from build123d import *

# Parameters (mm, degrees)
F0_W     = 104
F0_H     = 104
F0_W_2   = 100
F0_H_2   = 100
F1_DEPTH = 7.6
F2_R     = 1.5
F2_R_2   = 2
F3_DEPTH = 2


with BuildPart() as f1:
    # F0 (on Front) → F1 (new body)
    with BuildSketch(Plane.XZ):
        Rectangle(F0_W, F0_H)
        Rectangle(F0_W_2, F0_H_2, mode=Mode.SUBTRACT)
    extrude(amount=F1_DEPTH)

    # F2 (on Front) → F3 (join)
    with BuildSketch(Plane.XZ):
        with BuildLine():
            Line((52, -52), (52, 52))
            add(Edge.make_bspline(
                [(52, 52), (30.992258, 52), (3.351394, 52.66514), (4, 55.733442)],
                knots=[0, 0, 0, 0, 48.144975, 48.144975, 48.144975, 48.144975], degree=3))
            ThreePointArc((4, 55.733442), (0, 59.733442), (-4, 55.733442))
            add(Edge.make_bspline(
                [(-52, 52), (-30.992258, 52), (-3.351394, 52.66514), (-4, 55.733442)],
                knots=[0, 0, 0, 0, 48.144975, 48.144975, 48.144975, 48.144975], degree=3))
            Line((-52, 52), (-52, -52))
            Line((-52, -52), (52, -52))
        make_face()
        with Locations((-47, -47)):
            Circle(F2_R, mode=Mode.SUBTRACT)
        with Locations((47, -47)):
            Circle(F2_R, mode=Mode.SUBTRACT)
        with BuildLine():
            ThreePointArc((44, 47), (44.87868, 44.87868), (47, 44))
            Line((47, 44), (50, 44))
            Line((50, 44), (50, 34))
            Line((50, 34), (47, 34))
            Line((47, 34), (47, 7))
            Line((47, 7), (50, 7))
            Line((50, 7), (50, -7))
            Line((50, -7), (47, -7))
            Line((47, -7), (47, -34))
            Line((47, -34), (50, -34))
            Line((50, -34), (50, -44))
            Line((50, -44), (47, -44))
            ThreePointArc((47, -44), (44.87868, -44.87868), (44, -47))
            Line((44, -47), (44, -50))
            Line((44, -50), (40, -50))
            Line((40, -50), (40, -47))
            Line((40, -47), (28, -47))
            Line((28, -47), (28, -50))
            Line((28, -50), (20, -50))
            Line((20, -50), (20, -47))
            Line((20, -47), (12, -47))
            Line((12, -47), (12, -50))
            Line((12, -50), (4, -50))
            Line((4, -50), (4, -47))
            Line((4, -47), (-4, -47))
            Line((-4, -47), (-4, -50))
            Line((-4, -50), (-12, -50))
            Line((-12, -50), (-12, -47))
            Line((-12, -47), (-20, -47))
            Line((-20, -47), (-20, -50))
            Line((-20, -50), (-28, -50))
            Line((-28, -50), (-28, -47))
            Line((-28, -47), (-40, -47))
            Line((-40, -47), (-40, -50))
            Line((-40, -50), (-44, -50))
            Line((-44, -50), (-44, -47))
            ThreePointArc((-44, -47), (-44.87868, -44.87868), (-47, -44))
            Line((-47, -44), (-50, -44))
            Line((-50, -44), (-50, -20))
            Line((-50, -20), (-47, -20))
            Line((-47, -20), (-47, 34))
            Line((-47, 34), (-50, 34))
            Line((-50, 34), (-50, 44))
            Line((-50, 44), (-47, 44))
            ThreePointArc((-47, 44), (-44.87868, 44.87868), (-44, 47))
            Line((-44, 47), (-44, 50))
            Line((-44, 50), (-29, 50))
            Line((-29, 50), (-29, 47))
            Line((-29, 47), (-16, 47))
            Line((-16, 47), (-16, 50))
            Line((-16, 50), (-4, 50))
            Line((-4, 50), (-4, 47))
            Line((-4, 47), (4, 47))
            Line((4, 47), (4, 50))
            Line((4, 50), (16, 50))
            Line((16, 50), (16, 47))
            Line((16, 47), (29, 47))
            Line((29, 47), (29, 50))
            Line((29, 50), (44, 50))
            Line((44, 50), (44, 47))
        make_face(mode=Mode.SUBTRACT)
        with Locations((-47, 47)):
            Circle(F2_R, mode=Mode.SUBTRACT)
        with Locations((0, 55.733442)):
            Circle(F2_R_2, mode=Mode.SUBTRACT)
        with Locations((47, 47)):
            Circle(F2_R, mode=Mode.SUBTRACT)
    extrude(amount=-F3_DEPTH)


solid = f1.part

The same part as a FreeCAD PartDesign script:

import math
import FreeCAD as App
import Part
import Sketcher
Q = App.Units.Quantity


def add_polygon(sketch, points):
    """Adds a closed chain of lines whose ends are joined by coincident constraints."""
    first, n = sketch.GeometryCount, len(points)
    for a, b in zip(points, points[1:] + points[:1]):
        sketch.addGeometry(Part.LineSegment(App.Vector(*a, 0), App.Vector(*b, 0)), False)
    for i in range(n):
        sketch.addConstraint(Sketcher.Constraint("Coincident", first + i, 2, first + (i + 1) % n, 1))

doc = App.newDocument("Part")
body = doc.addObject("PartDesign::Body", "Body")

# Sketch on XZ plane
sketch1 = doc.addObject("Sketcher::SketchObject", "Sketch")
body.addObject(sketch1)
sketch1.AttachmentSupport = (doc.XZ_Plane, [""])
sketch1.MapMode = "FlatFace"
add_polygon(sketch1, [(-52, 52), (-52, -52), (52, -52), (52, 52)])  # lines 0-3
add_polygon(sketch1, [(50, -50), (-50, -50), (-50, 50), (50, 50)])  # lines 4-7
sketch1.addConstraint([
    Sketcher.Constraint("Vertical", 0),
    Sketcher.Constraint("Horizontal", 1),
    Sketcher.Constraint("Vertical", 2),
    Sketcher.Constraint("Horizontal", 3),
    Sketcher.Constraint("Horizontal", 4),
    Sketcher.Constraint("Vertical", 5),
    Sketcher.Constraint("Horizontal", 6),
    Sketcher.Constraint("Vertical", 7),
    Sketcher.Constraint("Symmetric", 0, 2, 2, 2, -1, 1),
    Sketcher.Constraint("Symmetric", 4, 2, 6, 2, -1, 1),
    Sketcher.Constraint("Equal", 3, 0),
    Sketcher.Constraint("Equal", 6, 5),
    Sketcher.Constraint("DistanceX", 1, 1, 1, 2, Q("104 mm")),
    Sketcher.Constraint("DistanceX", 4, 2, 4, 1, Q("100 mm")),
])
pad1 = doc.addObject("PartDesign::Pad", "Pad")
body.addObject(pad1)
pad1.Profile = sketch1
pad1.Length = 7.6

# Sketch on XZ plane
sketch2 = doc.addObject("Sketcher::SketchObject", "Sketch001")
body.addObject(sketch2)
sketch2.AttachmentSupport = (doc.XZ_Plane, [""])
sketch2.MapMode = "FlatFace"
sketch2.addGeometry([
    Part.LineSegment(App.Vector(52, -52, 0), App.Vector(52, 52, 0)),  # 0
    Part.BSplineCurve([App.Vector(52, 52, 0), App.Vector(30.992258, 52, 0), App.Vector(3.351394, 52.66514, 0), App.Vector(4, 55.733442, 0)], [4, 4], [0, 48.144975], False, 3, [1, 1, 1, 1], False),  # 1
    Part.ArcOfCircle(Part.Circle(App.Vector(0, 55.733442, 0), App.Vector(0, 0, 1), 4), math.radians(0), math.radians(180)),  # 2
    Part.BSplineCurve([App.Vector(-52, 52, 0), App.Vector(-30.992258, 52, 0), App.Vector(-3.351394, 52.66514, 0), App.Vector(-4, 55.733442, 0)], [4, 4], [0, 48.144975], False, 3, [1, 1, 1, 1], False),  # 3
    Part.LineSegment(App.Vector(-52, 52, 0), App.Vector(-52, -52, 0)),  # 4
    Part.LineSegment(App.Vector(-52, -52, 0), App.Vector(52, -52, 0)),  # 5
    Part.Circle(App.Vector(-47, -47, 0), App.Vector(0, 0, 1), 1.5),  # 6
    Part.Circle(App.Vector(47, -47, 0), App.Vector(0, 0, 1), 1.5),  # 7
    Part.LineSegment(App.Vector(44, 50, 0), App.Vector(44, 47, 0)),  # 8
    Part.ArcOfCircle(Part.Circle(App.Vector(47.000001, 47.000001, 0), App.Vector(0, 0, 1), 3.000001), math.radians(-179.999978), math.radians(-90.000022)),  # 9
    Part.LineSegment(App.Vector(47, 44, 0), App.Vector(50, 44, 0)),  # 10
    Part.LineSegment(App.Vector(50, 44, 0), App.Vector(50, 34, 0)),  # 11
    Part.LineSegment(App.Vector(50, 34, 0), App.Vector(47, 34, 0)),  # 12
    Part.LineSegment(App.Vector(47, 34, 0), App.Vector(47, 7, 0)),  # 13
    Part.LineSegment(App.Vector(47, 7, 0), App.Vector(50, 7, 0)),  # 14
    Part.LineSegment(App.Vector(50, 7, 0), App.Vector(50, -7, 0)),  # 15
    Part.LineSegment(App.Vector(50, -7, 0), App.Vector(47, -7, 0)),  # 16
    Part.LineSegment(App.Vector(47, -7, 0), App.Vector(47, -34, 0)),  # 17
    Part.LineSegment(App.Vector(47, -34, 0), App.Vector(50, -34, 0)),  # 18
    Part.LineSegment(App.Vector(50, -34, 0), App.Vector(50, -44, 0)),  # 19
    Part.LineSegment(App.Vector(50, -44, 0), App.Vector(47, -44, 0)),  # 20
    Part.ArcOfCircle(Part.Circle(App.Vector(47.000001, -47.000001, 0), App.Vector(0, 0, 1), 3.000001), math.radians(90.000022), math.radians(179.999978)),  # 21
    Part.LineSegment(App.Vector(44, -47, 0), App.Vector(44, -50, 0)),  # 22
    Part.LineSegment(App.Vector(44, -50, 0), App.Vector(40, -50, 0)),  # 23
    Part.LineSegment(App.Vector(40, -50, 0), App.Vector(40, -47, 0)),  # 24
    Part.LineSegment(App.Vector(40, -47, 0), App.Vector(28, -47, 0)),  # 25
    Part.LineSegment(App.Vector(28, -47, 0), App.Vector(28, -50, 0)),  # 26
    Part.LineSegment(App.Vector(28, -50, 0), App.Vector(20, -50, 0)),  # 27
    Part.LineSegment(App.Vector(20, -50, 0), App.Vector(20, -47, 0)),  # 28
    Part.LineSegment(App.Vector(20, -47, 0), App.Vector(12, -47, 0)),  # 29
    Part.LineSegment(App.Vector(12, -47, 0), App.Vector(12, -50, 0)),  # 30
    Part.LineSegment(App.Vector(12, -50, 0), App.Vector(4, -50, 0)),  # 31
    Part.LineSegment(App.Vector(4, -50, 0), App.Vector(4, -47, 0)),  # 32
    Part.LineSegment(App.Vector(4, -47, 0), App.Vector(-4, -47, 0)),  # 33
    Part.LineSegment(App.Vector(-4, -47, 0), App.Vector(-4, -50, 0)),  # 34
    Part.LineSegment(App.Vector(-4, -50, 0), App.Vector(-12, -50, 0)),  # 35
    Part.LineSegment(App.Vector(-12, -50, 0), App.Vector(-12, -47, 0)),  # 36
    Part.LineSegment(App.Vector(-12, -47, 0), App.Vector(-20, -47, 0)),  # 37
    Part.LineSegment(App.Vector(-20, -47, 0), App.Vector(-20, -50, 0)),  # 38
    Part.LineSegment(App.Vector(-20, -50, 0), App.Vector(-28, -50, 0)),  # 39
    Part.LineSegment(App.Vector(-28, -50, 0), App.Vector(-28, -47, 0)),  # 40
    Part.LineSegment(App.Vector(-28, -47, 0), App.Vector(-40, -47, 0)),  # 41
    Part.LineSegment(App.Vector(-40, -47, 0), App.Vector(-40, -50, 0)),  # 42
    Part.LineSegment(App.Vector(-40, -50, 0), App.Vector(-44, -50, 0)),  # 43
    Part.LineSegment(App.Vector(-44, -50, 0), App.Vector(-44, -47, 0)),  # 44
    Part.ArcOfCircle(Part.Circle(App.Vector(-47.000001, -47.000001, 0), App.Vector(0, 0, 1), 3.000001), math.radians(0.000022), math.radians(89.999978)),  # 45
    Part.LineSegment(App.Vector(-47, -44, 0), App.Vector(-50, -44, 0)),  # 46
    Part.LineSegment(App.Vector(-50, -44, 0), App.Vector(-50, -20, 0)),  # 47
    Part.LineSegment(App.Vector(-50, -20, 0), App.Vector(-47, -20, 0)),  # 48
    Part.LineSegment(App.Vector(-47, -20, 0), App.Vector(-47, 34, 0)),  # 49
    Part.LineSegment(App.Vector(-47, 34, 0), App.Vector(-50, 34, 0)),  # 50
    Part.LineSegment(App.Vector(-50, 34, 0), App.Vector(-50, 44, 0)),  # 51
    Part.LineSegment(App.Vector(-50, 44, 0), App.Vector(-47, 44, 0)),  # 52
    Part.ArcOfCircle(Part.Circle(App.Vector(-47.000001, 47.000001, 0), App.Vector(0, 0, 1), 3.000001), math.radians(-89.999978), math.radians(-0.000022)),  # 53
    Part.LineSegment(App.Vector(-44, 47, 0), App.Vector(-44, 50, 0)),  # 54
    Part.LineSegment(App.Vector(-44, 50, 0), App.Vector(-29, 50, 0)),  # 55
    Part.LineSegment(App.Vector(-29, 50, 0), App.Vector(-29, 47, 0)),  # 56
    Part.LineSegment(App.Vector(-29, 47, 0), App.Vector(-16, 47, 0)),  # 57
    Part.LineSegment(App.Vector(-16, 47, 0), App.Vector(-16, 50, 0)),  # 58
    Part.LineSegment(App.Vector(-16, 50, 0), App.Vector(-4, 50, 0)),  # 59
    Part.LineSegment(App.Vector(-4, 50, 0), App.Vector(-4, 47, 0)),  # 60
    Part.LineSegment(App.Vector(-4, 47, 0), App.Vector(4, 47, 0)),  # 61
    Part.LineSegment(App.Vector(4, 47, 0), App.Vector(4, 50, 0)),  # 62
    Part.LineSegment(App.Vector(4, 50, 0), App.Vector(16, 50, 0)),  # 63
    Part.LineSegment(App.Vector(16, 50, 0), App.Vector(16, 47, 0)),  # 64
    Part.LineSegment(App.Vector(16, 47, 0), App.Vector(29, 47, 0)),  # 65
    Part.LineSegment(App.Vector(29, 47, 0), App.Vector(29, 50, 0)),  # 66
    Part.LineSegment(App.Vector(29, 50, 0), App.Vector(44, 50, 0)),  # 67
    Part.Circle(App.Vector(-47, 47, 0), App.Vector(0, 0, 1), 1.5),  # 68
    Part.Circle(App.Vector(0, 55.733442, 0), App.Vector(0, 0, 1), 2),  # 69
    Part.Circle(App.Vector(47, 47, 0), App.Vector(0, 0, 1), 1.5),  # 70
], False)
sketch2.addConstraint([
    Sketcher.Constraint("Block", 1),
    Sketcher.Constraint("Block", 3),
    Sketcher.Constraint("Coincident", 0, 2, 1, 1),
    Sketcher.Constraint("Coincident", 1, 2, 2, 1),
    Sketcher.Constraint("Coincident", 2, 2, 3, 2),
    Sketcher.Constraint("Coincident", 3, 1, 4, 1),
    Sketcher.Constraint("Coincident", 4, 2, 5, 1),
    Sketcher.Constraint("Coincident", 5, 2, 0, 1),
    Sketcher.Constraint("Coincident", 8, 2, 9, 1),
    Sketcher.Constraint("Coincident", 9, 2, 10, 1),
    Sketcher.Constraint("Coincident", 10, 2, 11, 1),
    Sketcher.Constraint("Coincident", 11, 2, 12, 1),
    Sketcher.Constraint("Coincident", 12, 2, 13, 1),
    Sketcher.Constraint("Coincident", 13, 2, 14, 1),
    Sketcher.Constraint("Coincident", 14, 2, 15, 1),
    Sketcher.Constraint("Coincident", 15, 2, 16, 1),
    Sketcher.Constraint("Coincident", 16, 2, 17, 1),
    Sketcher.Constraint("Coincident", 17, 2, 18, 1),
    Sketcher.Constraint("Coincident", 18, 2, 19, 1),
    Sketcher.Constraint("Coincident", 19, 2, 20, 1),
    Sketcher.Constraint("Coincident", 20, 2, 21, 1),
    Sketcher.Constraint("Coincident", 21, 2, 22, 1),
    Sketcher.Constraint("Coincident", 22, 2, 23, 1),
    Sketcher.Constraint("Coincident", 23, 2, 24, 1),
    Sketcher.Constraint("Coincident", 24, 2, 25, 1),
    Sketcher.Constraint("Coincident", 25, 2, 26, 1),
    Sketcher.Constraint("Coincident", 26, 2, 27, 1),
    Sketcher.Constraint("Coincident", 27, 2, 28, 1),
    Sketcher.Constraint("Coincident", 28, 2, 29, 1),
    Sketcher.Constraint("Coincident", 29, 2, 30, 1),
    Sketcher.Constraint("Coincident", 30, 2, 31, 1),
    Sketcher.Constraint("Coincident", 31, 2, 32, 1),
    Sketcher.Constraint("Coincident", 32, 2, 33, 1),
    Sketcher.Constraint("Coincident", 33, 2, 34, 1),
    Sketcher.Constraint("Coincident", 34, 2, 35, 1),
    Sketcher.Constraint("Coincident", 35, 2, 36, 1),
    Sketcher.Constraint("Coincident", 36, 2, 37, 1),
    Sketcher.Constraint("Coincident", 37, 2, 38, 1),
    Sketcher.Constraint("Coincident", 38, 2, 39, 1),
    Sketcher.Constraint("Coincident", 39, 2, 40, 1),
    Sketcher.Constraint("Coincident", 40, 2, 41, 1),
    Sketcher.Constraint("Coincident", 41, 2, 42, 1),
    Sketcher.Constraint("Coincident", 42, 2, 43, 1),
    Sketcher.Constraint("Coincident", 43, 2, 44, 1),
    Sketcher.Constraint("Coincident", 44, 2, 45, 1),
    Sketcher.Constraint("Coincident", 45, 2, 46, 1),
    Sketcher.Constraint("Coincident", 46, 2, 47, 1),
    Sketcher.Constraint("Coincident", 47, 2, 48, 1),
    Sketcher.Constraint("Coincident", 48, 2, 49, 1),
    Sketcher.Constraint("Coincident", 49, 2, 50, 1),
    Sketcher.Constraint("Coincident", 50, 2, 51, 1),
    Sketcher.Constraint("Coincident", 51, 2, 52, 1),
    Sketcher.Constraint("Coincident", 52, 2, 53, 1),
    Sketcher.Constraint("Coincident", 53, 2, 54, 1),
    Sketcher.Constraint("Coincident", 54, 2, 55, 1),
    Sketcher.Constraint("Coincident", 55, 2, 56, 1),
    Sketcher.Constraint("Coincident", 56, 2, 57, 1),
    Sketcher.Constraint("Coincident", 57, 2, 58, 1),
    Sketcher.Constraint("Coincident", 58, 2, 59, 1),
    Sketcher.Constraint("Coincident", 59, 2, 60, 1),
    Sketcher.Constraint("Coincident", 60, 2, 61, 1),
    Sketcher.Constraint("Coincident", 61, 2, 62, 1),
    Sketcher.Constraint("Coincident", 62, 2, 63, 1),
    Sketcher.Constraint("Coincident", 63, 2, 64, 1),
    Sketcher.Constraint("Coincident", 64, 2, 65, 1),
    Sketcher.Constraint("Coincident", 65, 2, 66, 1),
    Sketcher.Constraint("Coincident", 66, 2, 67, 1),
    Sketcher.Constraint("Coincident", 67, 2, 8, 1),
    Sketcher.Constraint("Vertical", 0),
    Sketcher.Constraint("Vertical", 4),
    Sketcher.Constraint("Horizontal", 5),
    Sketcher.Constraint("Vertical", 8),
    Sketcher.Constraint("Horizontal", 10),
    Sketcher.Constraint("Vertical", 11),
    Sketcher.Constraint("Horizontal", 12),
    Sketcher.Constraint("Vertical", 13),
    Sketcher.Constraint("Horizontal", 14),
    Sketcher.Constraint("Vertical", 15),
    Sketcher.Constraint("Horizontal", 16),
    Sketcher.Constraint("Vertical", 17),
    Sketcher.Constraint("Horizontal", 18),
    Sketcher.Constraint("Vertical", 19),
    Sketcher.Constraint("Horizontal", 20),
    Sketcher.Constraint("Vertical", 22),
    Sketcher.Constraint("Horizontal", 23),
    Sketcher.Constraint("Vertical", 24),
    Sketcher.Constraint("Horizontal", 25),
    Sketcher.Constraint("Vertical", 26),
    Sketcher.Constraint("Horizontal", 27),
    Sketcher.Constraint("Vertical", 28),
    Sketcher.Constraint("Horizontal", 29),
    Sketcher.Constraint("Vertical", 30),
    Sketcher.Constraint("Horizontal", 31),
    Sketcher.Constraint("Vertical", 32),
    Sketcher.Constraint("Horizontal", 33),
    Sketcher.Constraint("Vertical", 34),
    Sketcher.Constraint("Horizontal", 35),
    Sketcher.Constraint("Vertical", 36),
    Sketcher.Constraint("Horizontal", 37),
    Sketcher.Constraint("Vertical", 38),
    Sketcher.Constraint("Horizontal", 39),
    Sketcher.Constraint("Vertical", 40),
    Sketcher.Constraint("Horizontal", 41),
    Sketcher.Constraint("Vertical", 42),
    Sketcher.Constraint("Horizontal", 43),
    Sketcher.Constraint("Vertical", 44),
    Sketcher.Constraint("Horizontal", 46),
    Sketcher.Constraint("Vertical", 47),
    Sketcher.Constraint("Horizontal", 48),
    Sketcher.Constraint("Vertical", 49),
    Sketcher.Constraint("Horizontal", 50),
    Sketcher.Constraint("Vertical", 51),
    Sketcher.Constraint("Horizontal", 52),
    Sketcher.Constraint("Vertical", 54),
    Sketcher.Constraint("Horizontal", 55),
    Sketcher.Constraint("Vertical", 56),
    Sketcher.Constraint("Horizontal", 57),
    Sketcher.Constraint("Vertical", 58),
    Sketcher.Constraint("Horizontal", 59),
    Sketcher.Constraint("Vertical", 60),
    Sketcher.Constraint("Horizontal", 61),
    Sketcher.Constraint("Vertical", 62),
    Sketcher.Constraint("Horizontal", 63),
    Sketcher.Constraint("Vertical", 64),
    Sketcher.Constraint("Horizontal", 65),
    Sketcher.Constraint("Vertical", 66),
    Sketcher.Constraint("Horizontal", 67),
    Sketcher.Constraint("Coincident", 21, 3, 7, 3),
    Sketcher.Constraint("Coincident", 45, 3, 6, 3),
    Sketcher.Constraint("Coincident", 68, 3, 53, 3),
    Sketcher.Constraint("Coincident", 69, 3, 2, 3),
    Sketcher.Constraint("Coincident", 70, 3, 9, 3),
    Sketcher.Constraint("Diameter", 6, Q("3 mm")),
    Sketcher.Constraint("Diameter", 7, Q("3 mm")),
    Sketcher.Constraint("Diameter", 68, Q("3 mm")),
    Sketcher.Constraint("Diameter", 69, Q("4 mm")),
    Sketcher.Constraint("Diameter", 70, Q("3 mm")),
    Sketcher.Constraint("Radius", 9, Q("3.000001 mm")),
    Sketcher.Constraint("Radius", 21, Q("3.000001 mm")),
    Sketcher.Constraint("Radius", 45, Q("3.000001 mm")),
    Sketcher.Constraint("Radius", 53, Q("3.000001 mm")),
    Sketcher.Constraint("DistanceX", 10, 1, 10, 2, Q("3 mm")),
    Sketcher.Constraint("DistanceX", 12, 2, 12, 1, Q("3 mm")),
    Sketcher.Constraint("DistanceX", 14, 1, 14, 2, Q("3 mm")),
    Sketcher.Constraint("DistanceX", 16, 2, 16, 1, Q("3 mm")),
    Sketcher.Constraint("DistanceX", 18, 1, 18, 2, Q("3 mm")),
    Sketcher.Constraint("DistanceX", 20, 2, 20, 1, Q("3 mm")),
    Sketcher.Constraint("DistanceX", 23, 2, 23, 1, Q("4 mm")),
    Sketcher.Constraint("DistanceX", 25, 2, 25, 1, Q("12 mm")),
    Sketcher.Constraint("DistanceX", 27, 2, 27, 1, Q("8 mm")),
    Sketcher.Constraint("DistanceX", 29, 2, 29, 1, Q("8 mm")),
    Sketcher.Constraint("DistanceX", 31, 2, 31, 1, Q("8 mm")),
    Sketcher.Constraint("DistanceX", 33, 2, 33, 1, Q("8 mm")),
    Sketcher.Constraint("DistanceX", 35, 2, 35, 1, Q("8 mm")),
    Sketcher.Constraint("DistanceX", 37, 2, 37, 1, Q("8 mm")),
    Sketcher.Constraint("DistanceX", 39, 2, 39, 1, Q("8 mm")),
    Sketcher.Constraint("DistanceX", 41, 2, 41, 1, Q("12 mm")),
    Sketcher.Constraint("DistanceX", 43, 2, 43, 1, Q("4 mm")),
    Sketcher.Constraint("DistanceX", 46, 2, 46, 1, Q("3 mm")),
    Sketcher.Constraint("DistanceX", 48, 1, 48, 2, Q("3 mm")),
    Sketcher.Constraint("DistanceX", 50, 2, 50, 1, Q("3 mm")),
    Sketcher.Constraint("DistanceX", 52, 1, 52, 2, Q("3 mm")),
    Sketcher.Constraint("DistanceX", 55, 1, 55, 2, Q("15 mm")),
    Sketcher.Constraint("DistanceX", 57, 1, 57, 2, Q("13 mm")),
    Sketcher.Constraint("DistanceX", 59, 1, 59, 2, Q("12 mm")),
    Sketcher.Constraint("DistanceX", 61, 1, 61, 2, Q("8 mm")),
    Sketcher.Constraint("DistanceX", 63, 1, 63, 2, Q("12 mm")),
    Sketcher.Constraint("DistanceX", 65, 1, 65, 2, Q("13 mm")),
    Sketcher.Constraint("DistanceX", 67, 1, 67, 2, Q("15 mm")),
    Sketcher.Constraint("DistanceY", 0, 1, 0, 2, Q("104 mm")),
    Sketcher.Constraint("DistanceY", 8, 2, 8, 1, Q("3 mm")),
    Sketcher.Constraint("DistanceY", 11, 2, 11, 1, Q("10 mm")),
    Sketcher.Constraint("DistanceY", 13, 2, 13, 1, Q("27 mm")),
    Sketcher.Constraint("DistanceY", 15, 2, 15, 1, Q("14 mm")),
    Sketcher.Constraint("DistanceY", 17, 2, 17, 1, Q("27 mm")),
    Sketcher.Constraint("DistanceY", 19, 2, 19, 1, Q("10 mm")),
    Sketcher.Constraint("DistanceY", 22, 2, 22, 1, Q("3 mm")),
    Sketcher.Constraint("DistanceY", 24, 1, 24, 2, Q("3 mm")),
    Sketcher.Constraint("DistanceY", 26, 2, 26, 1, Q("3 mm")),
    Sketcher.Constraint("DistanceY", 28, 1, 28, 2, Q("3 mm")),
    Sketcher.Constraint("DistanceY", 30, 2, 30, 1, Q("3 mm")),
    Sketcher.Constraint("DistanceY", 32, 1, 32, 2, Q("3 mm")),
    Sketcher.Constraint("DistanceY", 34, 2, 34, 1, Q("3 mm")),
    Sketcher.Constraint("DistanceY", 36, 1, 36, 2, Q("3 mm")),
    Sketcher.Constraint("DistanceY", 38, 2, 38, 1, Q("3 mm")),
    Sketcher.Constraint("DistanceY", 40, 1, 40, 2, Q("3 mm")),
    Sketcher.Constraint("DistanceY", 42, 2, 42, 1, Q("3 mm")),
    Sketcher.Constraint("DistanceY", 44, 1, 44, 2, Q("3 mm")),
    Sketcher.Constraint("DistanceY", 47, 1, 47, 2, Q("24 mm")),
    Sketcher.Constraint("DistanceY", 49, 1, 49, 2, Q("54 mm")),
    Sketcher.Constraint("DistanceY", 51, 1, 51, 2, Q("10 mm")),
    Sketcher.Constraint("DistanceY", 54, 1, 54, 2, Q("3 mm")),
    Sketcher.Constraint("DistanceY", 56, 2, 56, 1, Q("3 mm")),
    Sketcher.Constraint("DistanceY", 58, 1, 58, 2, Q("3 mm")),
    Sketcher.Constraint("DistanceY", 60, 2, 60, 1, Q("3 mm")),
    Sketcher.Constraint("DistanceY", 62, 1, 62, 2, Q("3 mm")),
    Sketcher.Constraint("DistanceY", 64, 2, 64, 1, Q("3 mm")),
    Sketcher.Constraint("DistanceY", 66, 1, 66, 2, Q("3 mm")),
    Sketcher.Constraint("DistanceX", 6, 3, -1, 1, Q("47 mm")),
    Sketcher.Constraint("DistanceY", 6, 3, -1, 1, Q("47 mm")),
    Sketcher.Constraint("DistanceY", 7, 3, -1, 1, Q("47 mm")),
    Sketcher.Constraint("DistanceX", -1, 1, 9, 3, Q("47.000001 mm")),
    Sketcher.Constraint("DistanceY", -1, 1, 8, 2, Q("47 mm")),
    Sketcher.Constraint("DistanceX", -1, 1, 9, 2, Q("47 mm")),
    Sketcher.Constraint("DistanceY", 21, 2, -1, 1, Q("47 mm")),
    Sketcher.Constraint("DistanceX", 45, 2, -1, 1, Q("47 mm")),
    Sketcher.Constraint("DistanceY", -1, 1, 2, 3, Q("55.733442 mm")),
])
pad2 = doc.addObject("PartDesign::Pad", "Pad001")
body.addObject(pad2)
pad2.Profile = sketch2
pad2.Length = 2
pad2.Reversed = True

doc.recompute()
